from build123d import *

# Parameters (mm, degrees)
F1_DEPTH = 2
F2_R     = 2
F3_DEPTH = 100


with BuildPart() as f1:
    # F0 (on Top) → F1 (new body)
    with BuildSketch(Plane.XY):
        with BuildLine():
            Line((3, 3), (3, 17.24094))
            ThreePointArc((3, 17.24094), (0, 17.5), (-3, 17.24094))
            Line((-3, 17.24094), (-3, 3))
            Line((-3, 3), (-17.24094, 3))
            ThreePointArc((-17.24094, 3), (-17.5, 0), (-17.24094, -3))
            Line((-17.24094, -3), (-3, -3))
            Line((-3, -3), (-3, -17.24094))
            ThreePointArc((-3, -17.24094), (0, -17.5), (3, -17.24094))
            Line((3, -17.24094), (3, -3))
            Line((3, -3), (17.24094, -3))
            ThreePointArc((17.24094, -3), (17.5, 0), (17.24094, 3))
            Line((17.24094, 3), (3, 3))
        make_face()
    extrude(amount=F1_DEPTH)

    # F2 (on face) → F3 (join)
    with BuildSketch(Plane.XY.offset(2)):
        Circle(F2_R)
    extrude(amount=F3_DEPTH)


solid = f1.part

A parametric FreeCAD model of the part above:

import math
import FreeCAD as App
import Part
import Sketcher
Q = App.Units.Quantity

doc = App.newDocument("Part")
body = doc.addObject("PartDesign::Body", "Body")

# Sketch on XY plane
sketch1 = body.newObject("Sketcher::SketchObject", "Sketch")
sketch1.AttachmentSupport = (doc.getObject("XY_Plane"), [""])
sketch1.MapMode = "FlatFace"
sketch1.addGeometry([
    Part.LineSegment(App.Vector(3, 3, 0), App.Vector(3, 17.24094, 0)),  # 0
    Part.ArcOfCircle(Part.Circle(App.Vector(0, -0.000023, 0), App.Vector(0, 0, 1), 17.500023), math.radians(80.129124), math.radians(99.870876)),  # 1
    Part.LineSegment(App.Vector(-3, 17.24094, 0), App.Vector(-3, 3, 0)),  # 2
    Part.LineSegment(App.Vector(-3, 3, 0), App.Vector(-17.24094, 3, 0)),  # 3
    Part.ArcOfCircle(Part.Circle(App.Vector(0.000023, 0, 0), App.Vector(0, 0, 1), 17.500023), math.radians(170.129124), math.radians(189.870876)),  # 4
    Part.LineSegment(App.Vector(-17.24094, -3, 0), App.Vector(-3, -3, 0)),  # 5
    Part.LineSegment(App.Vector(-3, -3, 0), App.Vector(-3, -17.24094, 0)),  # 6
    Part.ArcOfCircle(Part.Circle(App.Vector(0, 0.000023, 0), App.Vector(0, 0, 1), 17.500023), math.radians(-99.870876), math.radians(-80.129124)),  # 7
    Part.LineSegment(App.Vector(3, -17.24094, 0), App.Vector(3, -3, 0)),  # 8
    Part.LineSegment(App.Vector(3, -3, 0), App.Vector(17.24094, -3, 0)),  # 9
    Part.ArcOfCircle(Part.Circle(App.Vector(-0.000023, 0, 0), App.Vector(0, 0, 1), 17.500023), math.radians(-9.870876), math.radians(9.870876)),  # 10
    Part.LineSegment(App.Vector(17.24094, 3, 0), App.Vector(3, 3, 0)),  # 11
], False)
sketch1.addConstraint([
    Sketcher.Constraint("Coincident", 0, 2, 1, 1),
    Sketcher.Constraint("Coincident", 1, 2, 2, 1),
    Sketcher.Constraint("Coincident", 2, 2, 3, 1),
    Sketcher.Constraint("Coincident", 3, 2, 4, 1),
    Sketcher.Constraint("Coincident", 4, 2, 5, 1),
    Sketcher.Constraint("Coincident", 5, 2, 6, 1),
    Sketcher.Constraint("Coincident", 6, 2, 7, 1),
    Sketcher.Constraint("Coincident", 7, 2, 8, 1),
    Sketcher.Constraint("Coincident", 8, 2, 9, 1),
    Sketcher.Constraint("Coincident", 9, 2, 10, 1),
    Sketcher.Constraint("Coincident", 10, 2, 11, 1),
    Sketcher.Constraint("Coincident", 11, 2, 0, 1),
    Sketcher.Constraint("Vertical", 0),
    Sketcher.Constraint("Vertical", 2),
    Sketcher.Constraint("Horizontal", 3),
    Sketcher.Constraint("Horizontal", 5),
    Sketcher.Constraint("Vertical", 6),
    Sketcher.Constraint("Vertical", 8),
    Sketcher.Constraint("Horizontal", 9),
    Sketcher.Constraint("Horizontal", 11),
    Sketcher.Constraint("Equal", 1, 4),
    Sketcher.Constraint("Equal", 4, 7),
    Sketcher.Constraint("Equal", 7, 10),
    Sketcher.Constraint("Symmetric", 1, 3, 7, 3, -1, 1),
    Sketcher.Constraint("Symmetric", 4, 3, 10, 3, -1, 1),
    Sketcher.Constraint("Symmetric", 2, 2, 8, 2, -1, 1),
    Sketcher.Constraint("Symmetric", 5, 2, 11, 2, -1, 1),
    Sketcher.Constraint("Symmetric", 0, 2, 1, 2, -2),
    Sketcher.Constraint("Symmetric", 4, 2, 9, 2, -2),
    Sketcher.Constraint("Equal", 11, 0),
    Sketcher.Constraint("DistanceX", -1, 1, 0, 2, Q("3 mm")),
    Sketcher.Constraint("DistanceY", -1, 1, 2, 2, Q("3 mm")),
    Sketcher.Constraint("Radius", 1, Q("17.500023 mm")),
    Sketcher.Constraint("DistanceX", 3, 2, 3, 1, Q("14.24094 mm")),
])
pad1 = body.newObject("PartDesign::Pad", "Pad")
pad1.Profile = sketch1
pad1.Length = 2

# Sketch on XY plane
sketch2 = body.newObject("Sketcher::SketchObject", "Sketch001")
sketch2.AttachmentSupport = (doc.getObject("XY_Plane"), [""])
sketch2.MapMode = "FlatFace"
sketch2.AttachmentOffset = App.Placement(App.Vector(0, 0, 2), App.Rotation())
sketch2.addGeometry(Part.Circle(App.Vector(0, 0, 0), App.Vector(0, 0, 1), 2), False)
sketch2.addConstraint([
    Sketcher.Constraint("Coincident", 0, 3, -1, 1),
    Sketcher.Constraint("Diameter", 0, Q("4 mm")),
])
pad2 = body.newObject("PartDesign::Pad", "Pad001")
pad2.Profile = sketch2
pad2.Length = 100

doc.recompute()
